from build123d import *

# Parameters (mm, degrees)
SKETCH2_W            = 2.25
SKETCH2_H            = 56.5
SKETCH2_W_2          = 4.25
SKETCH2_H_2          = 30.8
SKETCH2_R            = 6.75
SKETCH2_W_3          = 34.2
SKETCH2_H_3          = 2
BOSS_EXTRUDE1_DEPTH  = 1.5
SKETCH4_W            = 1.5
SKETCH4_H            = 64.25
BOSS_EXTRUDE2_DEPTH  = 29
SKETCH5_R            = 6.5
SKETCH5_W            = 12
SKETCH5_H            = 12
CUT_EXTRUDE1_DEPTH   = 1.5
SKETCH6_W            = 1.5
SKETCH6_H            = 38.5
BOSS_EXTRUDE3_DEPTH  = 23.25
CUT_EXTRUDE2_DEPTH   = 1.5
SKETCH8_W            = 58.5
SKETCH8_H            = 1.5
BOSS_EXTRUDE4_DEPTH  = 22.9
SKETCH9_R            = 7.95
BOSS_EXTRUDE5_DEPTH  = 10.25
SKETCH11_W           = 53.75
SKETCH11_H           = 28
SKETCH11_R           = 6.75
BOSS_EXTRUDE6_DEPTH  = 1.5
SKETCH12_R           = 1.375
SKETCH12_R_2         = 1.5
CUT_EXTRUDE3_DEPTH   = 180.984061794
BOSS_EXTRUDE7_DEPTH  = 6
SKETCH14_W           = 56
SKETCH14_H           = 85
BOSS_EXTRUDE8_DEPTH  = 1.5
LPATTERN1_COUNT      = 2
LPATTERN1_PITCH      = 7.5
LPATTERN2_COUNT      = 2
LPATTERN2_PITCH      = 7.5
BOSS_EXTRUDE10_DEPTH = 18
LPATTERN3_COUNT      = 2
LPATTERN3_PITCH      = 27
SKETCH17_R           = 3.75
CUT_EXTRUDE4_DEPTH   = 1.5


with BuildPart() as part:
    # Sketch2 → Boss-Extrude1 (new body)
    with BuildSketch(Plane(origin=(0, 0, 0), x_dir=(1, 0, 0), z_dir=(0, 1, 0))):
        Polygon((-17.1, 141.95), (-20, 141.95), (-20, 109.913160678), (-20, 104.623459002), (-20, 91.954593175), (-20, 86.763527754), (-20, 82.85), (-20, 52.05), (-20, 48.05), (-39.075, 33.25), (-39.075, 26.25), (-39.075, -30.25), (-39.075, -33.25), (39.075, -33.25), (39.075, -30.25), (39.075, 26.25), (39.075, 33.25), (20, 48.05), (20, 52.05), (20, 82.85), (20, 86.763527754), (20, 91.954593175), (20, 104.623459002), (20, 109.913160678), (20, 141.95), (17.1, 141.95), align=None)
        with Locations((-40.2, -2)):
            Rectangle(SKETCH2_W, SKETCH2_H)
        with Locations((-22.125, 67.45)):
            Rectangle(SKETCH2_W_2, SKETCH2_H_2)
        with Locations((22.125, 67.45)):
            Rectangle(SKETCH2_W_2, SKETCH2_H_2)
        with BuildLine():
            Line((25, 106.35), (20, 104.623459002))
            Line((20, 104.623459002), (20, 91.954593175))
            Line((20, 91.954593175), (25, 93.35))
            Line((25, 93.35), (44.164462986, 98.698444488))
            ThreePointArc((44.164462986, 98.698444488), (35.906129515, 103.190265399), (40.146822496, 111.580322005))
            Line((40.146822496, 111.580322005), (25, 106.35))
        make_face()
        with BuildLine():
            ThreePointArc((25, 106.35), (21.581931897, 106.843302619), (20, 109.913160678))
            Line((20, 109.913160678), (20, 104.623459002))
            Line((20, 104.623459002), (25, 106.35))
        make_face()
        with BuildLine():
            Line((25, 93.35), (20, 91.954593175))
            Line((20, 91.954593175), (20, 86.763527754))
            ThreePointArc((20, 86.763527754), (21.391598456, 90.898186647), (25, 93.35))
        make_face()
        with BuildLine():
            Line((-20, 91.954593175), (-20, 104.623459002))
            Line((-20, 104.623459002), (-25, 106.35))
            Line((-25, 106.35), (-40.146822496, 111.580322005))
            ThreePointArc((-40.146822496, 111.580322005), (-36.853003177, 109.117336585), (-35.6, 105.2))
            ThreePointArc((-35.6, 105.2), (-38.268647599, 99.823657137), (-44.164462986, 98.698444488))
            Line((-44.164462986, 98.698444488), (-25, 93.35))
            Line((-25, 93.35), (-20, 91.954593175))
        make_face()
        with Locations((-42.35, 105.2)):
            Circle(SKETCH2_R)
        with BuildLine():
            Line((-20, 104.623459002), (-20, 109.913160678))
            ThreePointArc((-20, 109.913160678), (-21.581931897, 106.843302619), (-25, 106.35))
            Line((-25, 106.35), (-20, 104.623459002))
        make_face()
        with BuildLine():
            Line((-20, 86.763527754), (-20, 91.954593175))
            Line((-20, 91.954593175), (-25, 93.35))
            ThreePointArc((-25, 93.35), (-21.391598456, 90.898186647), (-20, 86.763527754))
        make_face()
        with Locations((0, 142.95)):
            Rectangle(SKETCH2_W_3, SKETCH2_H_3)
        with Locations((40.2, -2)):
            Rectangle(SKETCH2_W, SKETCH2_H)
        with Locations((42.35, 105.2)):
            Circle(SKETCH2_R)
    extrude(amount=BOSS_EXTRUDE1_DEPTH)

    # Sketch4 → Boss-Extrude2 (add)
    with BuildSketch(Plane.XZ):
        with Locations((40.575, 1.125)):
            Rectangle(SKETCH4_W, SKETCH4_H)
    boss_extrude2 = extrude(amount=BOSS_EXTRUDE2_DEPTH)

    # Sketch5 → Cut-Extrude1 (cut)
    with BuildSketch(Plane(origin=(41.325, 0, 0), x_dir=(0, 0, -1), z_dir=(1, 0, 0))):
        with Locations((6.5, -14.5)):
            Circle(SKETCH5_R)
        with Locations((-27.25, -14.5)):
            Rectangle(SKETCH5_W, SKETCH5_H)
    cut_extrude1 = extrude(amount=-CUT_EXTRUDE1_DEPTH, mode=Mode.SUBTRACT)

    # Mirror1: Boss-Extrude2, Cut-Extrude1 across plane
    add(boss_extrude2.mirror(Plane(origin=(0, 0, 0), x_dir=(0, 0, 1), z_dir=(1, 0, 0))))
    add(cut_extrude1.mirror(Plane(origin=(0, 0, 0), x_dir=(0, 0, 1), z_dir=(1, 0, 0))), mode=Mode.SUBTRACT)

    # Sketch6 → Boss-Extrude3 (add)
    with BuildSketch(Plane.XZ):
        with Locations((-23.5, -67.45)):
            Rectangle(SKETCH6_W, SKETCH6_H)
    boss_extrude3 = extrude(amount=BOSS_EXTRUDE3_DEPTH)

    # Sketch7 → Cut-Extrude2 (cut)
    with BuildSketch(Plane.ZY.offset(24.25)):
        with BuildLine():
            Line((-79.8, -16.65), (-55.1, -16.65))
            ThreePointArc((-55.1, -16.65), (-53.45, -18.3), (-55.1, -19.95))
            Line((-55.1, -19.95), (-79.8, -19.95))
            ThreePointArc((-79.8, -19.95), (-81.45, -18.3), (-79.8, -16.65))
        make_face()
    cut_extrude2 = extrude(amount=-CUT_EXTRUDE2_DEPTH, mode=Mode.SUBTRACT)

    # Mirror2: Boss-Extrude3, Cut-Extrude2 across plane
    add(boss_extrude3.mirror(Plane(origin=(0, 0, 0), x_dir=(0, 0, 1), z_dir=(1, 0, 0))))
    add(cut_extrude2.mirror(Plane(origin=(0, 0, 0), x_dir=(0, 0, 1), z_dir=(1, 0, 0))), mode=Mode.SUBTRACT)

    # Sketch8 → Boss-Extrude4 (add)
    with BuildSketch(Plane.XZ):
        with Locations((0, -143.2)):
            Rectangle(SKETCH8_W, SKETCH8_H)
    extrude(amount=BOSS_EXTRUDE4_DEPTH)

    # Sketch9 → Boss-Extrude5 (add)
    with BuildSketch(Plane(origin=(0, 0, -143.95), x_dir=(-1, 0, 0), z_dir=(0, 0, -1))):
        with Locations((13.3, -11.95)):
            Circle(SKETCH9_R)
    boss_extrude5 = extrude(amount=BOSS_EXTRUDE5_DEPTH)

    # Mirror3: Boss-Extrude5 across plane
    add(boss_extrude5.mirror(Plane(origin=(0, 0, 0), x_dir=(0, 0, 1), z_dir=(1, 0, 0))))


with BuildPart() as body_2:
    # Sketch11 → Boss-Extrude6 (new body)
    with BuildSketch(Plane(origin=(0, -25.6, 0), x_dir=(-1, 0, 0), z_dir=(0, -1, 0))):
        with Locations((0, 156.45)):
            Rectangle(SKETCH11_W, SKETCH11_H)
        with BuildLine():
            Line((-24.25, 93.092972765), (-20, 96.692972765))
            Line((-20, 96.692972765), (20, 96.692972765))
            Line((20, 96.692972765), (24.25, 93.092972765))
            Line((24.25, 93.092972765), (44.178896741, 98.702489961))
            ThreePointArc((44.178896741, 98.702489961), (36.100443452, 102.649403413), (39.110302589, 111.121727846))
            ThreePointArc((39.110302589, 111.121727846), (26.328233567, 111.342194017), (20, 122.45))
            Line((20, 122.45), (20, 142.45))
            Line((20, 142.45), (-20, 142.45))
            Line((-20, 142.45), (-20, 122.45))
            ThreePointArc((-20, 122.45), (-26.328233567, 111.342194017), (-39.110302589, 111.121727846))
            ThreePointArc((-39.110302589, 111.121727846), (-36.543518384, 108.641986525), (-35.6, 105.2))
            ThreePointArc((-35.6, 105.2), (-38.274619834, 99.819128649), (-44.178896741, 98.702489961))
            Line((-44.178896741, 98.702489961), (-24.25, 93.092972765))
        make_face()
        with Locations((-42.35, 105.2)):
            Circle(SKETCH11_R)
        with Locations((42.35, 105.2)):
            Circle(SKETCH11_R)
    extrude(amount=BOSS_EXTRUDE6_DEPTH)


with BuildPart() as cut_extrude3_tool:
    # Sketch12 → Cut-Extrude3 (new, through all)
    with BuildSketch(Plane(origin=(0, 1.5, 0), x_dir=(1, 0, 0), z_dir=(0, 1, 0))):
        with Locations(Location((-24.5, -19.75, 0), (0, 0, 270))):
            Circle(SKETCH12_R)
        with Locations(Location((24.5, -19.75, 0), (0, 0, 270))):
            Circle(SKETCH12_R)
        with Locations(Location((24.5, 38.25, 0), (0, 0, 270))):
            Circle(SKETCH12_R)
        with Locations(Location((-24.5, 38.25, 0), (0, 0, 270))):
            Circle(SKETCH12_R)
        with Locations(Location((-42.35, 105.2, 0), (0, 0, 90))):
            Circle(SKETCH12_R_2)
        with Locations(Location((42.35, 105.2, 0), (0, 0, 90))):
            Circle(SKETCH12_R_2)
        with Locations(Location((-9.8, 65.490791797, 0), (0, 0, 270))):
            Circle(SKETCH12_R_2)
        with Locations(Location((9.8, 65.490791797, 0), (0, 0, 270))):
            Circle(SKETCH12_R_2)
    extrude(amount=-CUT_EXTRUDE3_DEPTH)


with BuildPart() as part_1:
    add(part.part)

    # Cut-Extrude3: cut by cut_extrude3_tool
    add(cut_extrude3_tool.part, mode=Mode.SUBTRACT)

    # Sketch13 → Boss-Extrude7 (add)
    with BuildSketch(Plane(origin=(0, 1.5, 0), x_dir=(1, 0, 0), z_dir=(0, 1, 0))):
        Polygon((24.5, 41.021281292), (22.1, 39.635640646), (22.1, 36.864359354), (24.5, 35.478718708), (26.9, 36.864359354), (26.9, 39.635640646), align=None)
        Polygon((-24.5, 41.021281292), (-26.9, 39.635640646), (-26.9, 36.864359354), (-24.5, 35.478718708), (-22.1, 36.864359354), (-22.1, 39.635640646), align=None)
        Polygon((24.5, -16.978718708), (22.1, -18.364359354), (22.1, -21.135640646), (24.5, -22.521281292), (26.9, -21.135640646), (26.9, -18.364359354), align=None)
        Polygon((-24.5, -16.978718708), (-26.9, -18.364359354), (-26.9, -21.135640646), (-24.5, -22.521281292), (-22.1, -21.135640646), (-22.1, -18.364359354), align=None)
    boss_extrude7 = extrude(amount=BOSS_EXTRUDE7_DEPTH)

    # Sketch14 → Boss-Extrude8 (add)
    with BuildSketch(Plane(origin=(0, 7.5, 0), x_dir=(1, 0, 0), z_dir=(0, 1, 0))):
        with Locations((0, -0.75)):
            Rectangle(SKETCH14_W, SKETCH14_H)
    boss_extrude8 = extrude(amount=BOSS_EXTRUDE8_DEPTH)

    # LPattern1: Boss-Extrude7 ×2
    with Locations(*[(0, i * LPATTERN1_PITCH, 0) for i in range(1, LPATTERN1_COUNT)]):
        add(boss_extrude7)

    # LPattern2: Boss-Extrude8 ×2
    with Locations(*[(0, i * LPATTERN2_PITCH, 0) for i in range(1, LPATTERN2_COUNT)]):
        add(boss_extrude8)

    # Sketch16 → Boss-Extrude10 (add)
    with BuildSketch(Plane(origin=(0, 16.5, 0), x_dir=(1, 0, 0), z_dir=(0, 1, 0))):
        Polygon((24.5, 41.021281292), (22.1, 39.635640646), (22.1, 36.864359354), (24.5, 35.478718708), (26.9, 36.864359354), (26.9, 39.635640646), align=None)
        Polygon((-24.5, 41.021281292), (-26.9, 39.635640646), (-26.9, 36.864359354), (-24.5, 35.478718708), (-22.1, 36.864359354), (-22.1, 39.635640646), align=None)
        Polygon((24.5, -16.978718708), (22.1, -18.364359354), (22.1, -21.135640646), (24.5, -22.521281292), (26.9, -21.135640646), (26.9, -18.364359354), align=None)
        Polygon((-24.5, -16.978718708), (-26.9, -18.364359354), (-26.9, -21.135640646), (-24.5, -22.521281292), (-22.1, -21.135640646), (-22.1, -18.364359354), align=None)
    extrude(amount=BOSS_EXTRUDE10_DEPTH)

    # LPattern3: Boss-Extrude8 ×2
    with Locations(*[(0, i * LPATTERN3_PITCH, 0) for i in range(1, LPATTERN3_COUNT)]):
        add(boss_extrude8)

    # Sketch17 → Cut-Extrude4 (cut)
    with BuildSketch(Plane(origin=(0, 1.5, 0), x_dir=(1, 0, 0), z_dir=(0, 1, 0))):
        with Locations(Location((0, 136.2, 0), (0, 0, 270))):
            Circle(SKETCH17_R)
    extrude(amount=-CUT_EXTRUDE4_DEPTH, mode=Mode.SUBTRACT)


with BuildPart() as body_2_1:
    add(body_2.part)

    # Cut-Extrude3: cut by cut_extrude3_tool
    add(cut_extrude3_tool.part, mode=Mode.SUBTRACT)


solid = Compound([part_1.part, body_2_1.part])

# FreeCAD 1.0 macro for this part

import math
import FreeCAD as App
import Part
import Sketcher
from FreeCAD import Vector
Q = App.Units.Quantity


def add_polygon(sketch, points):
    """Adds a closed chain of lines whose ends are joined by coincident constraints."""
    first, n = sketch.GeometryCount, len(points)
    for a, b in zip(points, points[1:] + points[:1]):
        sketch.addGeometry(Part.LineSegment(App.Vector(*a, 0), App.Vector(*b, 0)), False)
    for i in range(n):
        sketch.addConstraint(Sketcher.Constraint("Coincident", first + i, 2, first + (i + 1) % n, 1))

doc = App.newDocument("Part")
body = doc.addObject("PartDesign::Body", "Body")

sketch1 = doc.addObject("Sketcher::SketchObject", "Sketch")
body.addObject(sketch1)
sketch1.AttachmentSupport = (doc.XZ_Plane, [""])
sketch1.MapMode = "FlatFace"
sketch1.addGeometry(Part.LineSegment(Vector(-20, -141.95, 0), Vector(-20, -109.913161, 0)), False)
sketch1.addGeometry(Part.ArcOfCircle(Part.Circle(Vector(-23.769611, -109.913161, 0), Vector(0, 0, 1), 3.769611), math.radians(0), math.radians(109.050213)), False)
sketch1.addGeometry(Part.LineSegment(Vector(-25, -106.35, 0), Vector(-40.146822, -111.580322, 0)), False)
sketch1.addGeometry(Part.ArcOfCircle(Part.Circle(Vector(-42.35, -105.2, 0), Vector(0, 0, 1), 6.75), math.radians(105.593427), math.radians(289.050213)), False)
sketch1.addGeometry(Part.LineSegment(Vector(-44.164463, -98.698444, 0), Vector(-25, -93.35, 0)), False)
sketch1.addGeometry(Part.ArcOfCircle(Part.Circle(Vector(-26.838162, -86.763528, 0), Vector(0, 0, 1), 6.838162), math.radians(-74.406573), math.radians(0)), False)
sketch1.addGeometry(Part.LineSegment(Vector(-20, -86.763528, 0), Vector(-20, -82.85, 0)), False)
sketch1.addGeometry(Part.LineSegment(Vector(-20, -82.85, 0), Vector(-24.25, -82.85, 0)), False)
sketch1.addGeometry(Part.LineSegment(Vector(-24.25, -82.85, 0), Vector(-24.25, -52.05, 0)), False)
sketch1.addGeometry(Part.LineSegment(Vector(-24.25, -52.05, 0), Vector(-20, -52.05, 0)), False)
sketch1.addGeometry(Part.LineSegment(Vector(-20, -52.05, 0), Vector(-20, -48.05, 0)), False)
sketch1.addGeometry(Part.LineSegment(Vector(-20, -48.05, 0), Vector(-39.075, -33.25, 0)), False)
sketch1.addGeometry(Part.LineSegment(Vector(-39.075, -33.25, 0), Vector(-39.075, -26.25, 0)), False)
sketch1.addGeometry(Part.LineSegment(Vector(-39.075, -26.25, 0), Vector(-41.325, -26.25, 0)), False)
sketch1.addGeometry(Part.LineSegment(Vector(-41.325, -26.25, 0), Vector(-41.325, 30.25, 0)), False)
sketch1.addGeometry(Part.LineSegment(Vector(-41.325, 30.25, 0), Vector(-39.075, 30.25, 0)), False)
sketch1.addGeometry(Part.LineSegment(Vector(-39.075, 30.25, 0), Vector(-39.075, 33.25, 0)), False)
sketch1.addGeometry(Part.LineSegment(Vector(-39.075, 33.25, 0), Vector(39.075, 33.25, 0)), False)
sketch1.addGeometry(Part.LineSegment(Vector(39.075, 33.25, 0), Vector(39.075, 30.25, 0)), False)
sketch1.addGeometry(Part.LineSegment(Vector(39.075, 30.25, 0), Vector(41.325, 30.25, 0)), False)
sketch1.addGeometry(Part.LineSegment(Vector(41.325, 30.25, 0), Vector(41.325, -26.25, 0)), False)
sketch1.addGeometry(Part.LineSegment(Vector(41.325, -26.25, 0), Vector(39.075, -26.25, 0)), False)
sketch1.addGeometry(Part.LineSegment(Vector(39.075, -26.25, 0), Vector(39.075, -33.25, 0)), False)
sketch1.addGeometry(Part.LineSegment(Vector(39.075, -33.25, 0), Vector(20, -48.05, 0)), False)
sketch1.addGeometry(Part.LineSegment(Vector(20, -48.05, 0), Vector(20, -52.05, 0)), False)
sketch1.addGeometry(Part.LineSegment(Vector(20, -52.05, 0), Vector(24.25, -52.05, 0)), False)
sketch1.addGeometry(Part.LineSegment(Vector(24.25, -52.05, 0), Vector(24.25, -82.85, 0)), False)
sketch1.addGeometry(Part.LineSegment(Vector(24.25, -82.85, 0), Vector(20, -82.85, 0)), False)
sketch1.addGeometry(Part.LineSegment(Vector(20, -82.85, 0), Vector(20, -86.763528, 0)), False)
sketch1.addGeometry(Part.ArcOfCircle(Part.Circle(Vector(26.838162, -86.763528, 0), Vector(0, 0, 1), 6.838162), math.radians(-180), math.radians(-105.593427)), False)
sketch1.addGeometry(Part.LineSegment(Vector(25, -93.35, 0), Vector(44.164463, -98.698444, 0)), False)
sketch1.addGeometry(Part.ArcOfCircle(Part.Circle(Vector(42.35, -105.2, 0), Vector(0, 0, 1), 6.75), math.radians(-109.050213), math.radians(74.406573)), False)
sketch1.addGeometry(Part.LineSegment(Vector(40.146822, -111.580322, 0), Vector(25, -106.35, 0)), False)
sketch1.addGeometry(Part.ArcOfCircle(Part.Circle(Vector(23.769611, -109.913161, 0), Vector(0, 0, 1), 3.769611), math.radians(70.949787), math.radians(180)), False)
sketch1.addGeometry(Part.LineSegment(Vector(20, -109.913161, 0), Vector(20, -141.95, 0)), False)
sketch1.addGeometry(Part.LineSegment(Vector(20, -141.95, 0), Vector(17.1, -141.95, 0)), False)
sketch1.addGeometry(Part.LineSegment(Vector(17.1, -141.95, 0), Vector(17.1, -143.95, 0)), False)
sketch1.addGeometry(Part.LineSegment(Vector(17.1, -143.95, 0), Vector(-17.1, -143.95, 0)), False)
sketch1.addGeometry(Part.LineSegment(Vector(-17.1, -143.95, 0), Vector(-17.1, -141.95, 0)), False)
sketch1.addGeometry(Part.LineSegment(Vector(-17.1, -141.95, 0), Vector(-20, -141.95, 0)), False)
sketch1.addConstraint(Sketcher.Constraint("Tangent", 0, 2, 1, 1))
sketch1.addConstraint(Sketcher.Constraint("Tangent", 1, 2, 2, 1))
sketch1.addConstraint(Sketcher.Constraint("Tangent", 2, 2, 3, 2))
sketch1.addConstraint(Sketcher.Constraint("Tangent", 3, 1, 4, 1))
sketch1.addConstraint(Sketcher.Constraint("Tangent", 4, 2, 5, 1))
sketch1.addConstraint(Sketcher.Constraint("Tangent", 5, 2, 6, 1))
sketch1.addConstraint(Sketcher.Constraint("Coincident", 6, 2, 7, 1))
sketch1.addConstraint(Sketcher.Constraint("Coincident", 7, 2, 8, 1))
sketch1.addConstraint(Sketcher.Constraint("Coincident", 8, 2, 9, 1))
sketch1.addConstraint(Sketcher.Constraint("Coincident", 9, 2, 10, 1))
sketch1.addConstraint(Sketcher.Constraint("Coincident", 10, 2, 11, 1))
sketch1.addConstraint(Sketcher.Constraint("Coincident", 11, 2, 12, 1))
sketch1.addConstraint(Sketcher.Constraint("Coincident", 12, 2, 13, 1))
sketch1.addConstraint(Sketcher.Constraint("Coincident", 13, 2, 14, 1))
sketch1.addConstraint(Sketcher.Constraint("Coincident", 14, 2, 15, 1))
sketch1.addConstraint(Sketcher.Constraint("Coincident", 15, 2, 16, 1))
sketch1.addConstraint(Sketcher.Constraint("Coincident", 16, 2, 17, 1))
sketch1.addConstraint(Sketcher.Constraint("Coincident", 17, 2, 18, 1))
sketch1.addConstraint(Sketcher.Constraint("Coincident", 18, 2, 19, 1))
sketch1.addConstraint(Sketcher.Constraint("Coincident", 19, 2, 20, 1))
sketch1.addConstraint(Sketcher.Constraint("Coincident", 20, 2, 21, 1))
sketch1.addConstraint(Sketcher.Constraint("Coincident", 21, 2, 22, 1))
sketch1.addConstraint(Sketcher.Constraint("Coincident", 22, 2, 23, 1))
sketch1.addConstraint(Sketcher.Constraint("Coincident", 23, 2, 24, 1))
sketch1.addConstraint(Sketcher.Constraint("Coincident", 24, 2, 25, 1))
sketch1.addConstraint(Sketcher.Constraint("Coincident", 25, 2, 26, 1))
sketch1.addConstraint(Sketcher.Constraint("Coincident", 26, 2, 27, 1))
sketch1.addConstraint(Sketcher.Constraint("Coincident", 27, 2, 28, 1))
sketch1.addConstraint(Sketcher.Constraint("Tangent", 28, 2, 29, 1))
sketch1.addConstraint(Sketcher.Constraint("Tangent", 29, 2, 30, 1))
sketch1.addConstraint(Sketcher.Constraint("Tangent", 30, 2, 31, 2))
sketch1.addConstraint(Sketcher.Constraint("Tangent", 31, 1, 32, 1))
sketch1.addConstraint(Sketcher.Constraint("Tangent", 32, 2, 33, 1))
sketch1.addConstraint(Sketcher.Constraint("Tangent", 33, 2, 34, 1))
sketch1.addConstraint(Sketcher.Constraint("Coincident", 34, 2, 35, 1))
sketch1.addConstraint(Sketcher.Constraint("Coincident", 35, 2, 36, 1))
sketch1.addConstraint(Sketcher.Constraint("Coincident", 36, 2, 37, 1))
sketch1.addConstraint(Sketcher.Constraint("Coincident", 37, 2, 38, 1))
sketch1.addConstraint(Sketcher.Constraint("Coincident", 38, 2, 39, 1))
sketch1.addConstraint(Sketcher.Constraint("Coincident", 39, 2, 0, 1))
sketch1.addConstraint(Sketcher.Constraint("Vertical", 0))
sketch1.addConstraint(Sketcher.Constraint("Vertical", 6))
sketch1.addConstraint(Sketcher.Constraint("Horizontal", 7))
sketch1.addConstraint(Sketcher.Constraint("Vertical", 8))
sketch1.addConstraint(Sketcher.Constraint("Horizontal", 9))
sketch1.addConstraint(Sketcher.Constraint("Vertical", 10))
sketch1.addConstraint(Sketcher.Constraint("Vertical", 12))
sketch1.addConstraint(Sketcher.Constraint("Horizontal", 13))
sketch1.addConstraint(Sketcher.Constraint("Vertical", 14))
sketch1.addConstraint(Sketcher.Constraint("Horizontal", 15))
sketch1.addConstraint(Sketcher.Constraint("Vertical", 16))
sketch1.addConstraint(Sketcher.Constraint("Horizontal", 17))
sketch1.addConstraint(Sketcher.Constraint("Vertical", 18))
sketch1.addConstraint(Sketcher.Constraint("Horizontal", 19))
sketch1.addConstraint(Sketcher.Constraint("Vertical", 20))
sketch1.addConstraint(Sketcher.Constraint("Horizontal", 21))
sketch1.addConstraint(Sketcher.Constraint("Vertical", 22))
sketch1.addConstraint(Sketcher.Constraint("Vertical", 24))
sketch1.addConstraint(Sketcher.Constraint("Horizontal", 25))
sketch1.addConstraint(Sketcher.Constraint("Vertical", 26))
sketch1.addConstraint(Sketcher.Constraint("Horizontal", 27))
sketch1.addConstraint(Sketcher.Constraint("Vertical", 28))
sketch1.addConstraint(Sketcher.Constraint("Vertical", 34))
sketch1.addConstraint(Sketcher.Constraint("Horizontal", 35))
sketch1.addConstraint(Sketcher.Constraint("Vertical", 36))
sketch1.addConstraint(Sketcher.Constraint("Horizontal", 37))
sketch1.addConstraint(Sketcher.Constraint("Vertical", 38))
sketch1.addConstraint(Sketcher.Constraint("Horizontal", 39))
sketch1.addConstraint(Sketcher.Constraint("Equal", 5, 29))
sketch1.addConstraint(Sketcher.Constraint("Equal", 3, 31))
sketch1.addConstraint(Sketcher.Constraint("Equal", 1, 33))
sketch1.addConstraint(Sketcher.Constraint("Symmetric", 11, 2, 17, 2, -1, 1))
sketch1.addConstraint(Sketcher.Constraint("Symmetric", 16, 2, 22, 2, -1, 1))
sketch1.addConstraint(Sketcher.Constraint("Symmetric", 5, 3, 29, 3, -2))
sketch1.addConstraint(Sketcher.Constraint("Symmetric", 3, 3, 31, 3, -2))
sketch1.addConstraint(Sketcher.Constraint("Symmetric", 1, 3, 33, 3, -2))
sketch1.addConstraint(Sketcher.Constraint("Symmetric", 15, 2, 18, 2, -2))
sketch1.addConstraint(Sketcher.Constraint("Symmetric", 13, 2, 20, 2, -2))
sketch1.addConstraint(Sketcher.Constraint("Symmetric", 10, 2, 23, 2, -2))
sketch1.addConstraint(Sketcher.Constraint("Symmetric", 8, 2, 25, 2, -2))
sketch1.addConstraint(Sketcher.Constraint("Symmetric", 35, 2, 38, 2, -2))
sketch1.addConstraint(Sketcher.Constraint("Horizontal", 7, 2, 26, 2))
sketch1.addConstraint(Sketcher.Constraint("Vertical", 1, 2, 4, 2))
sketch1.addConstraint(Sketcher.Constraint("Vertical", 0, 2, 5, 2))
sketch1.addConstraint(Sketcher.Constraint("Vertical", 6, 2, 9, 2))
sketch1.addConstraint(Sketcher.Constraint("DistanceY", 10, 1, 10, 2, 4.0))
sketch1.addConstraint(Sketcher.Constraint("DistanceY", 12, 1, 12, 2, 7.0))
sketch1.addConstraint(Sketcher.Constraint("DistanceY", 16, 1, 16, 2, 3.0))
sketch1.addConstraint(Sketcher.Constraint("DistanceY", 36, 2, 36, 1, 2.0))
sketch1.addConstraint(Sketcher.Constraint("Radius", 3, 6.75))
sketch1.addConstraint(Sketcher.Constraint("DistanceX", 35, 2, 35, 1, 2.9))
sketch1.addConstraint(Sketcher.Constraint("DistanceX", 37, 2, 37, 1, 34.2))
sketch1.addConstraint(Sketcher.Constraint("DistanceY", 8, 1, 8, 2, 30.8))
sketch1.addConstraint(Sketcher.Constraint("DistanceY", 14, 1, 14, 2, 56.5))
sketch1.addConstraint(Sketcher.Constraint("DistanceX", 1, 2, -1, 1, 25.0))
sketch1.addConstraint(Sketcher.Constraint("DistanceY", 1, 2, 4, 2, 13.0))
sketch1.addConstraint(Sketcher.Constraint("DistanceX", 7, 2, 7, 1, 4.25))
sketch1.addConstraint(Sketcher.Constraint("DistanceX", 13, 2, 13, 1, 2.25))
sketch1.addConstraint(Sketcher.Constraint("DistanceX", 17, 1, 17, 2, 78.15))
sketch1.addConstraint(Sketcher.Constraint("DistanceY", 3, 3, -1, 1, 105.2))
sketch1.addConstraint(Sketcher.Constraint("DistanceX", 3, 3, 31, 3, 84.7))
sketch1.addConstraint(Sketcher.Constraint("DistanceY", 4, 2, 6, 2, 10.5))
sketch1.addConstraint(Sketcher.Constraint("DistanceY", 8, 2, 11, 2, 18.8))
sketch1.addConstraint(Sketcher.Constraint("DistanceY", 34, 2, 32, 2, 35.6))
pad1 = doc.addObject("PartDesign::Pad", "Pad")
body.addObject(pad1)
pad1.Profile = sketch1
pad1.Length = 1.5
pad1.Reversed = True

sketch2 = doc.addObject("Sketcher::SketchObject", "Sketch001")
body.addObject(sketch2)
sketch2.AttachmentSupport = (doc.XZ_Plane, [""])
sketch2.MapMode = "FlatFace"
add_polygon(sketch2, [(39.825, 33.25), (39.825, -31), (41.325, -31), (41.325, 33.25)])
sketch2.addConstraint(Sketcher.Constraint("Vertical", 0))
sketch2.addConstraint(Sketcher.Constraint("Horizontal", 1))
sketch2.addConstraint(Sketcher.Constraint("Vertical", 2))
sketch2.addConstraint(Sketcher.Constraint("Horizontal", 3))
sketch2.addConstraint(Sketcher.Constraint("DistanceX", 1, 1, 1, 2, 1.5))
sketch2.addConstraint(Sketcher.Constraint("DistanceY", 0, 2, -1, 1, 31.0))
sketch2.addConstraint(Sketcher.Constraint("DistanceY", 0, 2, 0, 1, 64.25))
sketch2.addConstraint(Sketcher.Constraint("DistanceX", -1, 1, 0, 2, 39.825))
pad2 = doc.addObject("PartDesign::Pad", "Pad001")
body.addObject(pad2)
pad2.Profile = sketch2
pad2.Length = 29

sketch3 = doc.addObject("Sketcher::SketchObject", "Sketch002")
body.addObject(sketch3)
sketch3.AttachmentSupport = (doc.YZ_Plane, [""])
sketch3.MapMode = "FlatFace"
sketch3.AttachmentOffset = App.Placement(Vector(0, 0, 41.325), App.Rotation())
sketch3.addGeometry(Part.Circle(Vector(-14.5, -6.5, 0), Vector(0, 0, 1), 6.5), False)
add_polygon(sketch3, [(-8.5, 33.25), (-20.5, 33.25), (-20.5, 21.25), (-8.5, 21.25)])
sketch3.addConstraint(Sketcher.Constraint("Horizontal", 1))
sketch3.addConstraint(Sketcher.Constraint("Vertical", 2))
sketch3.addConstraint(Sketcher.Constraint("Horizontal", 3))
sketch3.addConstraint(Sketcher.Constraint("Vertical", 4))
sketch3.addConstraint(Sketcher.Constraint("Equal", 3, 2))
sketch3.addConstraint(Sketcher.Constraint("Diameter", 0, 13.0))
sketch3.addConstraint(Sketcher.Constraint("DistanceX", 1, 2, 1, 1, 12.0))
sketch3.addConstraint(Sketcher.Constraint("DistanceX", 1, 2, 0, 3, 6.0))
sketch3.addConstraint(Sketcher.Constraint("DistanceX", 0, 3, -1, 1, 14.5))
sketch3.addConstraint(Sketcher.Constraint("DistanceY", 0, 3, -1, 1, 6.5))
sketch3.addConstraint(Sketcher.Constraint("DistanceY", -1, 1, 1, 2, 33.25))
pocket1 = doc.addObject("PartDesign::Pocket", "Pocket")
body.addObject(pocket1)
pocket1.Profile = sketch3
pocket1.Length = 1.5
doc.recompute()

mirrored = doc.addObject("PartDesign::Mirrored", "Mirrored")
body.addObject(mirrored)
mirrored.Originals = [pad2, pocket1]
mirrored.MirrorPlane = (doc.YZ_Plane, [""])
body.Tip = mirrored

sketch4 = doc.addObject("Sketcher::SketchObject", "Sketch003")
body.addObject(sketch4)
sketch4.AttachmentSupport = (doc.XZ_Plane, [""])
sketch4.MapMode = "FlatFace"
add_polygon(sketch4, [(-24.25, -48.2), (-24.25, -86.7), (-22.75, -86.7), (-22.75, -48.2)])
sketch4.addConstraint(Sketcher.Constraint("Vertical", 0))
sketch4.addConstraint(Sketcher.Constraint("Horizontal", 1))
sketch4.addConstraint(Sketcher.Constraint("Vertical", 2))
sketch4.addConstraint(Sketcher.Constraint("Horizontal", 3))
sketch4.addConstraint(Sketcher.Constraint("DistanceX", 1, 1, 1, 2, 1.5))
sketch4.addConstraint(Sketcher.Constraint("DistanceY", 0, 2, 0, 1, 38.5))
sketch4.addConstraint(Sketcher.Constraint("DistanceY", 0, 2, -1, 1, 86.7))
sketch4.addConstraint(Sketcher.Constraint("DistanceX", 0, 2, -1, 1, 24.25))
pad3 = doc.addObject("PartDesign::Pad", "Pad002")
body.addObject(pad3)
pad3.Profile = sketch4
pad3.Length = 23.25

sketch5 = doc.addObject("Sketcher::SketchObject", "Sketch004")
body.addObject(sketch5)
sketch5.AttachmentSupport = (doc.YZ_Plane, [""])
sketch5.MapMode = "FlatFace"
sketch5.AttachmentOffset = App.Placement(Vector(0, 0, -24.25), App.Rotation())
sketch5.addGeometry(Part.LineSegment(Vector(-16.65, -55.1, 0), Vector(-16.65, -79.8, 0)), False)
sketch5.addGeometry(Part.ArcOfCircle(Part.Circle(Vector(-18.3, -79.8, 0), Vector(0, 0, 1), 1.65), math.radians(180), math.radians(360)), False)
sketch5.addGeometry(Part.LineSegment(Vector(-19.95, -79.8, 0), Vector(-19.95, -55.1, 0)), False)
sketch5.addGeometry(Part.ArcOfCircle(Part.Circle(Vector(-18.3, -55.1, 0), Vector(0, 0, 1), 1.65), math.radians(0), math.radians(180)), False)
sketch5.addConstraint(Sketcher.Constraint("Tangent", 0, 2, 1, 2))
sketch5.addConstraint(Sketcher.Constraint("Tangent", 1, 1, 2, 1))
sketch5.addConstraint(Sketcher.Constraint("Tangent", 2, 2, 3, 2))
sketch5.addConstraint(Sketcher.Constraint("Tangent", 3, 1, 0, 1))
sketch5.addConstraint(Sketcher.Constraint("Vertical", 0))
sketch5.addConstraint(Sketcher.Constraint("Vertical", 2))
sketch5.addConstraint(Sketcher.Constraint("Radius", 1, 1.65))
sketch5.addConstraint(Sketcher.Constraint("DistanceY", 0, 2, 0, 1, 24.7))
sketch5.addConstraint(Sketcher.Constraint("DistanceX", 1, 3, -1, 1, 18.3))
sketch5.addConstraint(Sketcher.Constraint("DistanceY", 1, 3, -1, 1, 79.8))
pocket2 = doc.addObject("PartDesign::Pocket", "Pocket001")
body.addObject(pocket2)
pocket2.Profile = sketch5
pocket2.Length = 1.5
pocket2.Reversed = True
doc.recompute()

mirrored2 = doc.addObject("PartDesign::Mirrored", "Mirrored001")
body.addObject(mirrored2)
mirrored2.Originals = [pad3, pocket2]
mirrored2.MirrorPlane = (doc.YZ_Plane, [""])
body.Tip = mirrored2

sketch6 = doc.addObject("Sketcher::SketchObject", "Sketch005")
body.addObject(sketch6)
sketch6.AttachmentSupport = (doc.XZ_Plane, [""])
sketch6.MapMode = "FlatFace"
add_polygon(sketch6, [(-29.25, -142.45), (-29.25, -143.95), (29.25, -143.95), (29.25, -142.45)])
sketch6.addConstraint(Sketcher.Constraint("Vertical", 0))
sketch6.addConstraint(Sketcher.Constraint("Horizontal", 1))
sketch6.addConstraint(Sketcher.Constraint("Vertical", 2))
sketch6.addConstraint(Sketcher.Constraint("Horizontal", 3))
sketch6.addConstraint(Sketcher.Constraint("DistanceX", 1, 1, 1, 2, 58.5))
sketch6.addConstraint(Sketcher.Constraint("DistanceY", 0, 2, 0, 1, 1.5))
sketch6.addConstraint(Sketcher.Constraint("DistanceX", 0, 2, -1, 1, 29.25))
sketch6.addConstraint(Sketcher.Constraint("DistanceY", 0, 2, -1, 1, 143.95))
pad4 = doc.addObject("PartDesign::Pad", "Pad003")
body.addObject(pad4)
pad4.Profile = sketch6
pad4.Length = 22.9

sketch7 = doc.addObject("Sketcher::SketchObject", "Sketch006")
body.addObject(sketch7)
sketch7.AttachmentSupport = (doc.XY_Plane, [""])
sketch7.MapMode = "FlatFace"
sketch7.AttachmentOffset = App.Placement(Vector(0, 0, -143.95), App.Rotation())
sketch7.addGeometry(Part.Circle(Vector(-13.3, -11.95, 0), Vector(0, 0, 1), 7.95), False)
sketch7.addConstraint(Sketcher.Constraint("Diameter", 0, 15.9))
sketch7.addConstraint(Sketcher.Constraint("DistanceX", 0, 3, -1, 1, 13.3))
sketch7.addConstraint(Sketcher.Constraint("DistanceY", 0, 3, -1, 1, 11.95))
pad5 = doc.addObject("PartDesign::Pad", "Pad004")
body.addObject(pad5)
pad5.Profile = sketch7
pad5.Length = 10.25
pad5.Reversed = True
doc.recompute()

mirrored3 = doc.addObject("PartDesign::Mirrored", "Mirrored002")
body.addObject(mirrored3)
mirrored3.Originals = [pad5]
mirrored3.MirrorPlane = (doc.YZ_Plane, [""])
body.Tip = mirrored3
body2 = doc.addObject("PartDesign::Body", "Body001")

sketch8 = doc.addObject("Sketcher::SketchObject", "Sketch007")
body2.addObject(sketch8)
sketch8.AttachmentSupport = (doc.getObject("XZ_Plane001"), [""])
sketch8.MapMode = "FlatFace"
sketch8.AttachmentOffset = App.Placement(Vector(0, 0, 25.6), App.Rotation())
sketch8.addGeometry(Part.LineSegment(Vector(26.875, -170.45, 0), Vector(26.875, -142.45, 0)), False)
sketch8.addGeometry(Part.LineSegment(Vector(26.875, -142.45, 0), Vector(20, -142.45, 0)), False)
sketch8.addGeometry(Part.LineSegment(Vector(20, -142.45, 0), Vector(20, -122.45, 0)), False)
sketch8.addGeometry(Part.ArcOfCircle(Part.Circle(Vector(32.912758, -122.45, 0), Vector(0, 0, 1), 12.912758), math.radians(61.317526), math.radians(180)), False)
sketch8.addGeometry(Part.ArcOfCircle(Part.Circle(Vector(42.35, -105.2, 0), Vector(0, 0, 1), 6.75), math.radians(-118.682474), math.radians(74.279334)), False)
sketch8.addGeometry(Part.LineSegment(Vector(44.178897, -98.70249, 0), Vector(24.25, -93.092973, 0)), False)
sketch8.addGeometry(Part.LineSegment(Vector(24.25, -93.092973, 0), Vector(20, -96.692973, 0)), False)
sketch8.addGeometry(Part.LineSegment(Vector(20, -96.692973, 0), Vector(-20, -96.692973, 0)), False)
sketch8.addGeometry(Part.LineSegment(Vector(-20, -96.692973, 0), Vector(-24.25, -93.092973, 0)), False)
sketch8.addGeometry(Part.LineSegment(Vector(-24.25, -93.092973, 0), Vector(-44.178897, -98.70249, 0)), False)
sketch8.addGeometry(Part.ArcOfCircle(Part.Circle(Vector(-42.35, -105.2, 0), Vector(0, 0, 1), 6.75), math.radians(105.720666), math.radians(298.682474)), False)
sketch8.addGeometry(Part.ArcOfCircle(Part.Circle(Vector(-32.912758, -122.45, 0), Vector(0, 0, 1), 12.912758), math.radians(0), math.radians(118.682474)), False)
sketch8.addGeometry(Part.LineSegment(Vector(-20, -122.45, 0), Vector(-20, -142.45, 0)), False)
sketch8.addGeometry(Part.LineSegment(Vector(-20, -142.45, 0), Vector(-26.875, -142.45, 0)), False)
sketch8.addGeometry(Part.LineSegment(Vector(-26.875, -142.45, 0), Vector(-26.875, -170.45, 0)), False)
sketch8.addGeometry(Part.LineSegment(Vector(-26.875, -170.45, 0), Vector(26.875, -170.45, 0)), False)
sketch8.addConstraint(Sketcher.Constraint("Coincident", 0, 2, 1, 1))
sketch8.addConstraint(Sketcher.Constraint("Coincident", 1, 2, 2, 1))
sketch8.addConstraint(Sketcher.Constraint("Tangent", 2, 2, 3, 2))
sketch8.addConstraint(Sketcher.Constraint("Tangent", 3, 1, 4, 1))
sketch8.addConstraint(Sketcher.Constraint("Tangent", 4, 2, 5, 1))
sketch8.addConstraint(Sketcher.Constraint("Coincident", 5, 2, 6, 1))
sketch8.addConstraint(Sketcher.Constraint("Coincident", 6, 2, 7, 1))
sketch8.addConstraint(Sketcher.Constraint("Coincident", 7, 2, 8, 1))
sketch8.addConstraint(Sketcher.Constraint("Coincident", 8, 2, 9, 1))
sketch8.addConstraint(Sketcher.Constraint("Tangent", 9, 2, 10, 1))
sketch8.addConstraint(Sketcher.Constraint("Tangent", 10, 2, 11, 2))
sketch8.addConstraint(Sketcher.Constraint("Tangent", 11, 1, 12, 1))
sketch8.addConstraint(Sketcher.Constraint("Coincident", 12, 2, 13, 1))
sketch8.addConstraint(Sketcher.Constraint("Coincident", 13, 2, 14, 1))
sketch8.addConstraint(Sketcher.Constraint("Coincident", 14, 2, 15, 1))
sketch8.addConstraint(Sketcher.Constraint("Coincident", 15, 2, 0, 1))
sketch8.addConstraint(Sketcher.Constraint("Vertical", 0))
sketch8.addConstraint(Sketcher.Constraint("Horizontal", 1))
sketch8.addConstraint(Sketcher.Constraint("Vertical", 2))
sketch8.addConstraint(Sketcher.Constraint("Horizontal", 7))
sketch8.addConstraint(Sketcher.Constraint("Vertical", 12))
sketch8.addConstraint(Sketcher.Constraint("Horizontal", 13))
sketch8.addConstraint(Sketcher.Constraint("Vertical", 14))
sketch8.addConstraint(Sketcher.Constraint("Horizontal", 15))
sketch8.addConstraint(Sketcher.Constraint("Equal", 4, 10))
sketch8.addConstraint(Sketcher.Constraint("Equal", 3, 11))
sketch8.addConstraint(Sketcher.Constraint("Symmetric", 4, 3, 10, 3, -2))
sketch8.addConstraint(Sketcher.Constraint("Symmetric", 5, 2, 8, 2, -2))
sketch8.addConstraint(Sketcher.Constraint("Symmetric", 1, 2, 12, 2, -2))
sketch8.addConstraint(Sketcher.Constraint("Vertical", 2, 2, 6, 2))
sketch8.addConstraint(Sketcher.Constraint("Vertical", 7, 2, 11, 1))
sketch8.addConstraint(Sketcher.Constraint("Equal", 1, 13))
sketch8.addConstraint(Sketcher.Constraint("DistanceX", 7, 2, 7, 1, 40.0))
sketch8.addConstraint(Sketcher.Constraint("DistanceY", 0, 1, 0, 2, 28.0))
sketch8.addConstraint(Sketcher.Constraint("DistanceY", 2, 1, 2, 2, 20.0))
sketch8.addConstraint(Sketcher.Constraint("Radius", 4, 6.75))
sketch8.addConstraint(Sketcher.Constraint("DistanceX", 15, 1, 15, 2, 53.75))
sketch8.addConstraint(Sketcher.Constraint("DistanceY", 4, 3, -1, 1, 105.2))
sketch8.addConstraint(Sketcher.Constraint("DistanceX", 10, 3, 4, 3, 84.7))
sketch8.addConstraint(Sketcher.Constraint("DistanceX", 5, 2, 4, 3, 18.1))
sketch8.addConstraint(Sketcher.Constraint("DistanceY", 6, 2, 5, 2, 3.6))
sketch8.addConstraint(Sketcher.Constraint("DistanceY", 3, 3, -1, 1, 122.45))
sketch8.addConstraint(Sketcher.Constraint("DistanceY", 4, 2, -1, 1, 98.70249))
pad6 = doc.addObject("PartDesign::Pad", "Pad005")
body2.addObject(pad6)
pad6.Profile = sketch8
pad6.Length = 1.5
body3 = doc.addObject("PartDesign::Body", "Body002")
body3.AllowCompound = True

sketch9 = doc.addObject("Sketcher::SketchObject", "Sketch008")
body3.addObject(sketch9)
sketch9.AttachmentSupport = (doc.getObject("XZ_Plane002"), [""])
sketch9.MapMode = "FlatFace"
sketch9.AttachmentOffset = App.Placement(Vector(0, 0, -1.5), App.Rotation())
sketch9.addGeometry(Part.Circle(Vector(-24.5, 19.75, 0), Vector(0, 0, 1), 1.375), False)
sketch9.addGeometry(Part.Circle(Vector(24.5, 19.75, 0), Vector(0, 0, 1), 1.375), False)
sketch9.addGeometry(Part.Circle(Vector(24.5, -38.25, 0), Vector(0, 0, 1), 1.375), False)
sketch9.addGeometry(Part.Circle(Vector(-24.5, -38.25, 0), Vector(0, 0, 1), 1.375), False)
sketch9.addGeometry(Part.Circle(Vector(-42.35, -105.2, 0), Vector(0, 0, 1), 1.5), False)
sketch9.addGeometry(Part.Circle(Vector(42.35, -105.2, 0), Vector(0, 0, 1), 1.5), False)
sketch9.addGeometry(Part.Circle(Vector(-9.8, -65.490792, 0), Vector(0, 0, 1), 1.5), False)
sketch9.addGeometry(Part.Circle(Vector(9.8, -65.490792, 0), Vector(0, 0, 1), 1.5), False)
sketch9.addConstraint(Sketcher.Constraint("Equal", 0, 1))
sketch9.addConstraint(Sketcher.Constraint("Equal", 1, 2))
sketch9.addConstraint(Sketcher.Constraint("Equal", 2, 3))
sketch9.addConstraint(Sketcher.Constraint("Equal", 4, 5))
sketch9.addConstraint(Sketcher.Constraint("Equal", 5, 6))
sketch9.addConstraint(Sketcher.Constraint("Equal", 6, 7))
sketch9.addConstraint(Sketcher.Constraint("Symmetric", 0, 3, 1, 3, -2))
sketch9.addConstraint(Sketcher.Constraint("Symmetric", 2, 3, 3, 3, -2))
sketch9.addConstraint(Sketcher.Constraint("Symmetric", 4, 3, 5, 3, -2))
sketch9.addConstraint(Sketcher.Constraint("Symmetric", 6, 3, 7, 3, -2))
sketch9.addConstraint(Sketcher.Constraint("Vertical", 1, 3, 2, 3))
sketch9.addConstraint(Sketcher.Constraint("Diameter", 4, 3.0))
sketch9.addConstraint(Sketcher.Constraint("Diameter", 0, 2.75))
sketch9.addConstraint(Sketcher.Constraint("DistanceX", 0, 3, 1, 3, 49.0))
sketch9.addConstraint(Sketcher.Constraint("DistanceY", 2, 3, 1, 3, 58.0))
sketch9.addConstraint(Sketcher.Constraint("DistanceY", 4, 3, -1, 1, 105.2))
sketch9.addConstraint(Sketcher.Constraint("DistanceX", 6, 3, -1, 1, 9.8))
sketch9.addConstraint(Sketcher.Constraint("DistanceX", 4, 3, 5, 3, 84.7))
sketch9.addConstraint(Sketcher.Constraint("DistanceY", -1, 1, 0, 3, 19.75))
sketch9.addConstraint(Sketcher.Constraint("DistanceY", 6, 3, -1, 1, 65.490792))
pad7 = doc.addObject("PartDesign::Pad", "Pad006")
body3.addObject(pad7)
pad7.Profile = sketch9
pad7.Length = 180.984062
doc.recompute()

body4 = doc.addObject("PartDesign::Body", "Body003")
body4.BaseFeature = body3
boolean = doc.addObject("PartDesign::Boolean", "Boolean")
body.addObject(boolean)
boolean.Type = "Cut"
boolean.addObjects([body4])
doc.recompute()

sketch10 = doc.addObject("Sketcher::SketchObject", "Sketch009")
body.addObject(sketch10)
sketch10.AttachmentSupport = (doc.XZ_Plane, [""])
sketch10.MapMode = "FlatFace"
sketch10.AttachmentOffset = App.Placement(Vector(0, 0, -1.5), App.Rotation())
add_polygon(sketch10, [(24.5, -41.021281), (22.1, -39.635641), (22.1, -36.864359), (24.5, -35.478719), (26.9, -36.864359), (26.9, -39.635641)])
add_polygon(sketch10, [(-24.5, -41.021281), (-26.9, -39.635641), (-26.9, -36.864359), (-24.5, -35.478719), (-22.1, -36.864359), (-22.1, -39.635641)])
add_polygon(sketch10, [(24.5, 16.978719), (22.1, 18.364359), (22.1, 21.135641), (24.5, 22.521281), (26.9, 21.135641), (26.9, 18.364359)])
add_polygon(sketch10, [(-24.5, 16.978719), (-26.9, 18.364359), (-26.9, 21.135641), (-24.5, 22.521281), (-22.1, 21.135641), (-22.1, 18.364359)])
sketch10.addConstraint(Sketcher.Constraint("Vertical", 1))
sketch10.addConstraint(Sketcher.Constraint("Vertical", 4))
sketch10.addConstraint(Sketcher.Constraint("Vertical", 7))
sketch10.addConstraint(Sketcher.Constraint("Vertical", 10))
sketch10.addConstraint(Sketcher.Constraint("Vertical", 13))
sketch10.addConstraint(Sketcher.Constraint("Vertical", 16))
sketch10.addConstraint(Sketcher.Constraint("Vertical", 19))
sketch10.addConstraint(Sketcher.Constraint("Vertical", 22))
sketch10.addConstraint(Sketcher.Constraint("Symmetric", 4, 2, 6, 2, -2))
sketch10.addConstraint(Sketcher.Constraint("Symmetric", 2, 2, 8, 2, -2))
sketch10.addConstraint(Sketcher.Constraint("Symmetric", 1, 2, 9, 2, -2))
sketch10.addConstraint(Sketcher.Constraint("Symmetric", 5, 2, 11, 2, -2))
sketch10.addConstraint(Sketcher.Constraint("Symmetric", 16, 2, 18, 2, -2))
sketch10.addConstraint(Sketcher.Constraint("Symmetric", 14, 2, 20, 2, -2))
sketch10.addConstraint(Sketcher.Constraint("Symmetric", 13, 2, 21, 2, -2))
sketch10.addConstraint(Sketcher.Constraint("Symmetric", 17, 2, 23, 2, -2))
sketch10.addConstraint(Sketcher.Constraint("Parallel", 0, 3))
sketch10.addConstraint(Sketcher.Constraint("Parallel", 2, 5))
sketch10.addConstraint(Sketcher.Constraint("Parallel", 3, 6))
sketch10.addConstraint(Sketcher.Constraint("Parallel", 5, 8))
sketch10.addConstraint(Sketcher.Constraint("Parallel", 8, 11))
sketch10.addConstraint(Sketcher.Constraint("Parallel", 9, 12))
sketch10.addConstraint(Sketcher.Constraint("Parallel", 11, 14))
sketch10.addConstraint(Sketcher.Constraint("Parallel", 12, 15))
sketch10.addConstraint(Sketcher.Constraint("Parallel", 14, 17))
sketch10.addConstraint(Sketcher.Constraint("Parallel", 17, 20))
sketch10.addConstraint(Sketcher.Constraint("Parallel", 20, 23))
sketch10.addConstraint(Sketcher.Constraint("Horizontal", 1, 2, 3, 2))
sketch10.addConstraint(Sketcher.Constraint("Horizontal", 0, 2, 4, 2))
sketch10.addConstraint(Sketcher.Constraint("Horizontal", 13, 2, 15, 2))
sketch10.addConstraint(Sketcher.Constraint("Horizontal", 12, 2, 16, 2))
sketch10.addConstraint(Sketcher.Constraint("Vertical", 1, 2, 12, 2))
sketch10.addConstraint(Sketcher.Constraint("Vertical", 5, 2, 14, 2))
sketch10.addConstraint(Sketcher.Constraint("Equal", 10, 13))
sketch10.addConstraint(Sketcher.Constraint("Angle", 0, Q("150 deg")))
sketch10.addConstraint(Sketcher.Constraint("DistanceX", 6, 2, 0, 2, 49.0))
sketch10.addConstraint(Sketcher.Constraint("DistanceY", 0, 2, 12, 2, 58.0))
sketch10.addConstraint(Sketcher.Constraint("DistanceX", -1, 1, 0, 2, 22.1))
sketch10.addConstraint(Sketcher.Constraint("DistanceY", 1, 1, 1, 2, 2.771281))
sketch10.addConstraint(Sketcher.Constraint("DistanceY", 0, 2, -1, 1, 39.635641))
pad8 = doc.addObject("PartDesign::Pad", "Pad007")
body.addObject(pad8)
pad8.Profile = sketch10
pad8.Length = 6
pad8.Reversed = True

sketch11 = doc.addObject("Sketcher::SketchObject", "Sketch010")
body.addObject(sketch11)
sketch11.AttachmentSupport = (doc.XZ_Plane, [""])
sketch11.MapMode = "FlatFace"
sketch11.AttachmentOffset = App.Placement(Vector(0, 0, -7.5), App.Rotation())
add_polygon(sketch11, [(-28, -41.75), (-28, 43.25), (28, 43.25), (28, -41.75)])
sketch11.addConstraint(Sketcher.Constraint("Vertical", 0))
sketch11.addConstraint(Sketcher.Constraint("Horizontal", 1))
sketch11.addConstraint(Sketcher.Constraint("Vertical", 2))
sketch11.addConstraint(Sketcher.Constraint("Horizontal", 3))
sketch11.addConstraint(Sketcher.Constraint("DistanceX", 1, 1, 1, 2, 56.0))
sketch11.addConstraint(Sketcher.Constraint("DistanceY", 0, 1, 0, 2, 85.0))
sketch11.addConstraint(Sketcher.Constraint("DistanceX", 0, 2, -1, 1, 28.0))
sketch11.addConstraint(Sketcher.Constraint("DistanceY", -1, 1, 0, 2, 43.25))
pad9 = doc.addObject("PartDesign::Pad", "Pad008")
body.addObject(pad9)
pad9.Profile = sketch11
pad9.Length = 1.5
pad9.Reversed = True
doc.recompute()

linearpattern = doc.addObject("PartDesign::LinearPattern", "LinearPattern")
body.addObject(linearpattern)
linearpattern.Originals = [pad8]
linearpattern.Direction = (doc.Y_Axis, [""])
linearpattern.Mode = "offset"
linearpattern.Offset = 7.5
linearpattern.Occurrences = 2
body.Tip = linearpattern
doc.recompute()

linearpattern2 = doc.addObject("PartDesign::LinearPattern", "LinearPattern001")
body.addObject(linearpattern2)
linearpattern2.Originals = [pad9]
linearpattern2.Direction = (doc.Y_Axis, [""])
linearpattern2.Mode = "offset"
linearpattern2.Offset = 7.5
linearpattern2.Occurrences = 2
body.Tip = linearpattern2

sketch12 = doc.addObject("Sketcher::SketchObject", "Sketch011")
body.addObject(sketch12)
sketch12.AttachmentSupport = (doc.XZ_Plane, [""])
sketch12.MapMode = "FlatFace"
sketch12.AttachmentOffset = App.Placement(Vector(0, 0, -16.5), App.Rotation())
add_polygon(sketch12, [(24.5, -41.021281), (22.1, -39.635641), (22.1, -36.864359), (24.5, -35.478719), (26.9, -36.864359), (26.9, -39.635641)])
add_polygon(sketch12, [(-24.5, -41.021281), (-26.9, -39.635641), (-26.9, -36.864359), (-24.5, -35.478719), (-22.1, -36.864359), (-22.1, -39.635641)])
add_polygon(sketch12, [(24.5, 16.978719), (22.1, 18.364359), (22.1, 21.135641), (24.5, 22.521281), (26.9, 21.135641), (26.9, 18.364359)])
add_polygon(sketch12, [(-24.5, 16.978719), (-26.9, 18.364359), (-26.9, 21.135641), (-24.5, 22.521281), (-22.1, 21.135641), (-22.1, 18.364359)])
sketch12.addConstraint(Sketcher.Constraint("Vertical", 1))
sketch12.addConstraint(Sketcher.Constraint("Vertical", 4))
sketch12.addConstraint(Sketcher.Constraint("Vertical", 7))
sketch12.addConstraint(Sketcher.Constraint("Vertical", 10))
sketch12.addConstraint(Sketcher.Constraint("Vertical", 13))
sketch12.addConstraint(Sketcher.Constraint("Vertical", 16))
sketch12.addConstraint(Sketcher.Constraint("Vertical", 19))
sketch12.addConstraint(Sketcher.Constraint("Vertical", 22))
sketch12.addConstraint(Sketcher.Constraint("Symmetric", 4, 2, 6, 2, -2))
sketch12.addConstraint(Sketcher.Constraint("Symmetric", 2, 2, 8, 2, -2))
sketch12.addConstraint(Sketcher.Constraint("Symmetric", 1, 2, 9, 2, -2))
sketch12.addConstraint(Sketcher.Constraint("Symmetric", 5, 2, 11, 2, -2))
sketch12.addConstraint(Sketcher.Constraint("Symmetric", 16, 2, 18, 2, -2))
sketch12.addConstraint(Sketcher.Constraint("Symmetric", 14, 2, 20, 2, -2))
sketch12.addConstraint(Sketcher.Constraint("Symmetric", 13, 2, 21, 2, -2))
sketch12.addConstraint(Sketcher.Constraint("Symmetric", 17, 2, 23, 2, -2))
sketch12.addConstraint(Sketcher.Constraint("Parallel", 0, 3))
sketch12.addConstraint(Sketcher.Constraint("Parallel", 2, 5))
sketch12.addConstraint(Sketcher.Constraint("Parallel", 3, 6))
sketch12.addConstraint(Sketcher.Constraint("Parallel", 5, 8))
sketch12.addConstraint(Sketcher.Constraint("Parallel", 8, 11))
sketch12.addConstraint(Sketcher.Constraint("Parallel", 9, 12))
sketch12.addConstraint(Sketcher.Constraint("Parallel", 11, 14))
sketch12.addConstraint(Sketcher.Constraint("Parallel", 12, 15))
sketch12.addConstraint(Sketcher.Constraint("Parallel", 14, 17))
sketch12.addConstraint(Sketcher.Constraint("Parallel", 17, 20))
sketch12.addConstraint(Sketcher.Constraint("Parallel", 20, 23))
sketch12.addConstraint(Sketcher.Constraint("Horizontal", 1, 2, 3, 2))
sketch12.addConstraint(Sketcher.Constraint("Horizontal", 0, 2, 4, 2))
sketch12.addConstraint(Sketcher.Constraint("Horizontal", 13, 2, 15, 2))
sketch12.addConstraint(Sketcher.Constraint("Horizontal", 12, 2, 16, 2))
sketch12.addConstraint(Sketcher.Constraint("Vertical", 1, 2, 12, 2))
sketch12.addConstraint(Sketcher.Constraint("Vertical", 5, 2, 14, 2))
sketch12.addConstraint(Sketcher.Constraint("Equal", 10, 13))
sketch12.addConstraint(Sketcher.Constraint("Angle", 0, Q("150 deg")))
sketch12.addConstraint(Sketcher.Constraint("DistanceX", 6, 2, 0, 2, 49.0))
sketch12.addConstraint(Sketcher.Constraint("DistanceY", 0, 2, 12, 2, 58.0))
sketch12.addConstraint(Sketcher.Constraint("DistanceX", -1, 1, 0, 2, 22.1))
sketch12.addConstraint(Sketcher.Constraint("DistanceY", 1, 1, 1, 2, 2.771281))
sketch12.addConstraint(Sketcher.Constraint("DistanceY", 0, 2, -1, 1, 39.635641))
pad10 = doc.addObject("PartDesign::Pad", "Pad009")
body.addObject(pad10)
pad10.Profile = sketch12
pad10.Length = 18
pad10.Reversed = True
doc.recompute()

linearpattern3 = doc.addObject("PartDesign::LinearPattern", "LinearPattern002")
body.addObject(linearpattern3)
linearpattern3.Originals = [pad9]
linearpattern3.Direction = (doc.Y_Axis, [""])
linearpattern3.Mode = "offset"
linearpattern3.Offset = 27
linearpattern3.Occurrences = 2
body.Tip = linearpattern3

sketch13 = doc.addObject("Sketcher::SketchObject", "Sketch012")
body.addObject(sketch13)
sketch13.AttachmentSupport = (doc.XZ_Plane, [""])
sketch13.MapMode = "FlatFace"
sketch13.AttachmentOffset = App.Placement(Vector(0, 0, -1.5), App.Rotation())
sketch13.addGeometry(Part.Circle(Vector(0, -136.2, 0), Vector(0, 0, 1), 3.75), False)
sketch13.addConstraint(Sketcher.Constraint("PointOnObject", 0, 3, -2))
sketch13.addConstraint(Sketcher.Constraint("Diameter", 0, 7.5))
sketch13.addConstraint(Sketcher.Constraint("DistanceY", 0, 3, -1, 1, 136.2))
pocket3 = doc.addObject("PartDesign::Pocket", "Pocket002")
body.addObject(pocket3)
pocket3.Profile = sketch13
pocket3.Length = 1.5
pocket3.Reversed = True
doc.recompute()

boolean2 = doc.addObject("PartDesign::Boolean", "Boolean001")
body2.addObject(boolean2)
boolean2.Type = "Cut"
boolean2.addObjects([body3])

doc.recompute()
